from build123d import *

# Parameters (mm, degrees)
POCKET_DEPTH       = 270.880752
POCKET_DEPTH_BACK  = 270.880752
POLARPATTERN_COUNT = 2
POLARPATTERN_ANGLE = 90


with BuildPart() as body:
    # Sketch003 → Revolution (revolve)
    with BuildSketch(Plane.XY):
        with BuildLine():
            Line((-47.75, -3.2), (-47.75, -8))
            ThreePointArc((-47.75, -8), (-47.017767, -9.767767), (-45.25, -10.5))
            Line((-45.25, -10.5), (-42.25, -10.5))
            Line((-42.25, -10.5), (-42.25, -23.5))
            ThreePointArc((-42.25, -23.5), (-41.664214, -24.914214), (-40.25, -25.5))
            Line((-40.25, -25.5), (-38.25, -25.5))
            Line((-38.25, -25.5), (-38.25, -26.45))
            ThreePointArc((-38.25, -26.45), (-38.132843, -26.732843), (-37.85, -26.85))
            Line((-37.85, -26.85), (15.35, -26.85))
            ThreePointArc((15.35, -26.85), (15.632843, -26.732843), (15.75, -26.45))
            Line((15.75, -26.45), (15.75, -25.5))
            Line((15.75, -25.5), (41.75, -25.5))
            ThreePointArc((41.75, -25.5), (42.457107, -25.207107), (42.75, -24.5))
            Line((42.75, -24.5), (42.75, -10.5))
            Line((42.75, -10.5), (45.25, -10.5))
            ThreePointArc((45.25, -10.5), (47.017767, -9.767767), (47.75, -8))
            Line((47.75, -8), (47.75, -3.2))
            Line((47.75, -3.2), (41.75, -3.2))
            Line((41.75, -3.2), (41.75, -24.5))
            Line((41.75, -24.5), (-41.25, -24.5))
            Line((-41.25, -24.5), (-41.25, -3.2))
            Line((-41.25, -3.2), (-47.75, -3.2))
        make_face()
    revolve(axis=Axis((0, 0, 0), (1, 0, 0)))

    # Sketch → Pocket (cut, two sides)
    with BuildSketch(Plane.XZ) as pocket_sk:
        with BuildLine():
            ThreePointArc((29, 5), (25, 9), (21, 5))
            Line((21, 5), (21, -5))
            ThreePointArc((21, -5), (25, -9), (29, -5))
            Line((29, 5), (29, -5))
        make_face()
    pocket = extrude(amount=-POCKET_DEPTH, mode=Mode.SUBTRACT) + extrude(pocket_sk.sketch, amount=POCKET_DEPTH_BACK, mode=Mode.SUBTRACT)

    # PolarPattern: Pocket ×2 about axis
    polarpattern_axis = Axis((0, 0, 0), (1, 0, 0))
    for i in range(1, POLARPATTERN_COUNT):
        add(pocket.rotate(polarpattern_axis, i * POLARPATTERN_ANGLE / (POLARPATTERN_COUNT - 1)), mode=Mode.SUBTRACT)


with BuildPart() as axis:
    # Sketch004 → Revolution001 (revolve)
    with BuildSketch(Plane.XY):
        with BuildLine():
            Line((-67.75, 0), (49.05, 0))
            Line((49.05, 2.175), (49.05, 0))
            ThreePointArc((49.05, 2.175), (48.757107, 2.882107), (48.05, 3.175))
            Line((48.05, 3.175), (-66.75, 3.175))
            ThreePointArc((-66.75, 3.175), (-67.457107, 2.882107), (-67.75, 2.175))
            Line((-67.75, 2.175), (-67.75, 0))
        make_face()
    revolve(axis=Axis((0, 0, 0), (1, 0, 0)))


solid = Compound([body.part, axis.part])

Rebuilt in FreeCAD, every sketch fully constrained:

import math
import FreeCAD as App
import Part
import Sketcher
from FreeCAD import Vector
Q = App.Units.Quantity

doc = App.newDocument("Part")
body = doc.addObject("PartDesign::Body", "Body")

# Sketch on XY plane
sketch1 = body.newObject("Sketcher::SketchObject", "Sketch")
sketch1.AttachmentSupport = (doc.getObject("XY_Plane"), [""])
sketch1.MapMode = "FlatFace"
sketch1.addGeometry([
    Part.LineSegment(Vector(-47.75, -3.2, 0), Vector(-47.75, -8, 0)),  # 0
    Part.ArcOfCircle(Part.Circle(Vector(-45.25, -8, 0), Vector(0, 0, 1), 2.5), math.radians(180), math.radians(270)),  # 1
    Part.LineSegment(Vector(-45.25, -10.5, 0), Vector(-42.25, -10.5, 0)),  # 2
    Part.LineSegment(Vector(-42.25, -10.5, 0), Vector(-42.25, -23.5, 0)),  # 3
    Part.ArcOfCircle(Part.Circle(Vector(-40.25, -23.5, 0), Vector(0, 0, 1), 2), math.radians(180), math.radians(270)),  # 4
    Part.LineSegment(Vector(-40.25, -25.5, 0), Vector(-38.25, -25.5, 0)),  # 5
    Part.LineSegment(Vector(-38.25, -25.5, 0), Vector(-38.25, -26.45, 0)),  # 6
    Part.ArcOfCircle(Part.Circle(Vector(-37.85, -26.45, 0), Vector(0, 0, 1), 0.4), math.radians(180), math.radians(270)),  # 7
    Part.LineSegment(Vector(-37.85, -26.85, 0), Vector(15.35, -26.85, 0)),  # 8
    Part.ArcOfCircle(Part.Circle(Vector(15.35, -26.45, 0), Vector(0, 0, 1), 0.4), math.radians(-90), math.radians(0)),  # 9
    Part.LineSegment(Vector(15.75, -26.45, 0), Vector(15.75, -25.5, 0)),  # 10
    Part.LineSegment(Vector(15.75, -25.5, 0), Vector(41.75, -25.5, 0)),  # 11
    Part.ArcOfCircle(Part.Circle(Vector(41.75, -24.5, 0), Vector(0, 0, 1), 1), math.radians(-90), math.radians(0)),  # 12
    Part.LineSegment(Vector(42.75, -24.5, 0), Vector(42.75, -10.5, 0)),  # 13
    Part.LineSegment(Vector(42.75, -10.5, 0), Vector(45.25, -10.5, 0)),  # 14
    Part.ArcOfCircle(Part.Circle(Vector(45.25, -8, 0), Vector(0, 0, 1), 2.5), math.radians(-90), math.radians(0)),  # 15
    Part.LineSegment(Vector(47.75, -8, 0), Vector(47.75, -3.2, 0)),  # 16
    Part.LineSegment(Vector(47.75, -3.2, 0), Vector(41.75, -3.2, 0)),  # 17
    Part.LineSegment(Vector(41.75, -3.2, 0), Vector(41.75, -24.5, 0)),  # 18
    Part.LineSegment(Vector(41.75, -24.5, 0), Vector(-41.25, -24.5, 0)),  # 19
    Part.LineSegment(Vector(-41.25, -24.5, 0), Vector(-41.25, -3.2, 0)),  # 20
    Part.LineSegment(Vector(-41.25, -3.2, 0), Vector(-47.75, -3.2, 0)),  # 21
], False)
sketch1.addConstraint([
    Sketcher.Constraint("Tangent", 0, 2, 1, 1),
    Sketcher.Constraint("Tangent", 1, 2, 2, 1),
    Sketcher.Constraint("Coincident", 2, 2, 3, 1),
    Sketcher.Constraint("Tangent", 3, 2, 4, 1),
    Sketcher.Constraint("Tangent", 4, 2, 5, 1),
    Sketcher.Constraint("Coincident", 5, 2, 6, 1),
    Sketcher.Constraint("Coincident", 6, 2, 7, 1),
    Sketcher.Constraint("Coincident", 7, 2, 8, 1),
    Sketcher.Constraint("Coincident", 8, 2, 9, 1),
    Sketcher.Constraint("Coincident", 9, 2, 10, 1),
    Sketcher.Constraint("Coincident", 10, 2, 11, 1),
    Sketcher.Constraint("Tangent", 11, 2, 12, 1),
    Sketcher.Constraint("Tangent", 12, 2, 13, 1),
    Sketcher.Constraint("Coincident", 13, 2, 14, 1),
    Sketcher.Constraint("Tangent", 14, 2, 15, 1),
    Sketcher.Constraint("Tangent", 15, 2, 16, 1),
    Sketcher.Constraint("Coincident", 16, 2, 17, 1),
    Sketcher.Constraint("Coincident", 17, 2, 18, 1),
    Sketcher.Constraint("Coincident", 18, 2, 19, 1),
    Sketcher.Constraint("Coincident", 19, 2, 20, 1),
    Sketcher.Constraint("Coincident", 20, 2, 21, 1),
    Sketcher.Constraint("Coincident", 21, 2, 0, 1),
    Sketcher.Constraint("Vertical", 0),
    Sketcher.Constraint("Horizontal", 2),
    Sketcher.Constraint("Vertical", 3),
    Sketcher.Constraint("Horizontal", 5),
    Sketcher.Constraint("Vertical", 6),
    Sketcher.Constraint("Horizontal", 8),
    Sketcher.Constraint("Vertical", 10),
    Sketcher.Constraint("Horizontal", 11),
    Sketcher.Constraint("Vertical", 13),
    Sketcher.Constraint("Horizontal", 14),
    Sketcher.Constraint("Vertical", 16),
    Sketcher.Constraint("Horizontal", 17),
    Sketcher.Constraint("Vertical", 18),
    Sketcher.Constraint("Horizontal", 19),
    Sketcher.Constraint("Vertical", 20),
    Sketcher.Constraint("Horizontal", 21),
    Sketcher.Constraint("Coincident", 18, 2, 12, 3),
    Sketcher.Constraint("Equal", 7, 9),
    Sketcher.Constraint("Equal", 1, 15),
    Sketcher.Constraint("Symmetric", 1, 3, 15, 3, -2),
    Sketcher.Constraint("Horizontal", 9, 3, 6, 2),
    Sketcher.Constraint("Horizontal", 6, 2, 9, 2),
    Sketcher.Constraint("Horizontal", 5, 2, 10, 2),
    Sketcher.Constraint("Horizontal", 17, 2, 20, 2),
    Sketcher.Constraint("Vertical", 9, 3, 8, 2),
    Sketcher.Constraint("Radius", 4, Q("1.999999 mm")),
    Sketcher.Constraint("Radius", 12, Q("0.999999 mm")),
    Sketcher.Constraint("Radius", 1, Q("2.5 mm")),
    Sketcher.Constraint("Radius", 7, Q("0.399999 mm")),
    Sketcher.Constraint("DistanceX", 2, 1, 2, 2, Q("3 mm")),
    Sketcher.Constraint("DistanceX", 5, 1, 5, 2, Q("2 mm")),
    Sketcher.Constraint("DistanceX", 11, 1, 11, 2, Q("26 mm")),
    Sketcher.Constraint("DistanceX", 17, 2, 17, 1, Q("6 mm")),
    Sketcher.Constraint("DistanceX", 19, 2, 19, 1, Q("83 mm")),
    Sketcher.Constraint("DistanceY", 3, 2, 3, 1, Q("13 mm")),
    Sketcher.Constraint("DistanceX", 8, 1, 8, 2, Q("53.2 mm")),
    Sketcher.Constraint("DistanceX", 21, 2, 21, 1, Q("6.5 mm")),
    Sketcher.Constraint("DistanceY", 0, 2, 0, 1, Q("4.8 mm")),
    Sketcher.Constraint("DistanceY", 1, 3, -1, 1, Q("8 mm")),
    Sketcher.Constraint("DistanceY", 6, 2, 6, 1, Q("0.95 mm")),
])
revolution = body.newObject("PartDesign::Revolution", "Revolution")
revolution.Profile = sketch1
revolution.ReferenceAxis = (sketch1, ["H_Axis"])
revolution.Angle = 360

# Sketch on XZ plane
sketch2 = body.newObject("Sketcher::SketchObject", "Sketch001")
sketch2.AttachmentSupport = (doc.getObject("XZ_Plane"), [""])
sketch2.MapMode = "FlatFace"
sketch2.addGeometry([
    Part.ArcOfCircle(Part.Circle(Vector(25, 5, 0), Vector(0, 0, 1), 4), math.radians(0), math.radians(180)),
    Part.LineSegment(Vector(21, 5, 0), Vector(21, -5, 0)),
    Part.ArcOfCircle(Part.Circle(Vector(25, -5, 0), Vector(0, 0, 1), 4), math.radians(180), math.radians(360)),
    Part.LineSegment(Vector(29, -5, 0), Vector(29, 5, 0)),
], False)
sketch2.addConstraint([
    Sketcher.Constraint("Tangent", 0, 2, 1, 1),
    Sketcher.Constraint("Tangent", 1, 2, 2, 1),
    Sketcher.Constraint("Tangent", 2, 2, 3, 1),
    Sketcher.Constraint("Tangent", 3, 2, 0, 1),
    Sketcher.Constraint("Vertical", 1),
    Sketcher.Constraint("Vertical", 3),
    Sketcher.Constraint("Radius", 0, Q("4 mm")),
    Sketcher.Constraint("DistanceY", 1, 2, 1, 1, Q("10 mm")),
    Sketcher.Constraint("DistanceX", -1, 1, 0, 3, Q("25 mm")),
    Sketcher.Constraint("DistanceY", -1, 1, 0, 3, Q("5 mm")),
])
pocket1 = body.newObject("PartDesign::Pocket", "Pocket")
pocket1.Profile = sketch2
pocket1.Type = "ThroughAll"
pocket1.Midplane = True
doc.recompute()

polarpattern = body.newObject("PartDesign::PolarPattern", "PolarPattern")
polarpattern.Originals = [pocket1]
polarpattern.Axis = (doc.getObject("X_Axis"), [""])
polarpattern.Angle = 90
polarpattern.Occurrences = 2
body.Tip = polarpattern
body2 = doc.addObject("PartDesign::Body", "Body001")

# Sketch on XY plane
sketch3 = body2.newObject("Sketcher::SketchObject", "Sketch002")
sketch3.AttachmentSupport = (doc.getObject("XY_Plane001"), [""])
sketch3.MapMode = "FlatFace"
sketch3.addGeometry([
    Part.LineSegment(Vector(-67.8, 0, 0), Vector(49, 0, 0)),  # 0
    Part.LineSegment(Vector(49, 0, 0), Vector(49, 2.2, 0)),  # 1
    Part.ArcOfCircle(Part.Circle(Vector(48.1, 2.2, 0), Vector(0, 0, 1), 1), math.radians(0), math.radians(90)),  # 2
    Part.LineSegment(Vector(48, 3.2, 0), Vector(-66.8, 3.2, 0)),  # 3
    Part.ArcOfCircle(Part.Circle(Vector(-66.8, 2.2, 0), Vector(0, 0, 1), 1), math.radians(90), math.radians(180)),  # 4
    Part.LineSegment(Vector(-67.8, 2.2, 0), Vector(-67.8, 0, 0)),  # 5
], False)
sketch3.addConstraint([
    Sketcher.Constraint("Coincident", 0, 2, 1, 1),
    Sketcher.Constraint("Tangent", 1, 2, 2, 1),
    Sketcher.Constraint("Tangent", 2, 2, 3, 1),
    Sketcher.Constraint("Tangent", 3, 2, 4, 1),
    Sketcher.Constraint("Tangent", 4, 2, 5, 1),
    Sketcher.Constraint("Coincident", 5, 2, 0, 1),
    Sketcher.Constraint("Horizontal", 0),
    Sketcher.Constraint("Vertical", 1),
    Sketcher.Constraint("Horizontal", 3),
    Sketcher.Constraint("Vertical", 5),
    Sketcher.Constraint("Equal", 2, 4),
    Sketcher.Constraint("PointOnObject", 0, 2, -1),
    Sketcher.Constraint("Radius", 2, Q("0.999999 mm")),
    Sketcher.Constraint("DistanceX", 0, 1, 0, 2, Q("116.8 mm")),
    Sketcher.Constraint("DistanceY", 1, 1, 1, 2, Q("2.175 mm")),
    Sketcher.Constraint("DistanceX", -1, 1, 2, 3, Q("48.050001 mm")),
])
revolution2 = body2.newObject("PartDesign::Revolution", "Revolution001")
revolution2.Profile = sketch3
revolution2.ReferenceAxis = (sketch3, ["H_Axis"])
revolution2.Angle = 360

doc.recompute()
